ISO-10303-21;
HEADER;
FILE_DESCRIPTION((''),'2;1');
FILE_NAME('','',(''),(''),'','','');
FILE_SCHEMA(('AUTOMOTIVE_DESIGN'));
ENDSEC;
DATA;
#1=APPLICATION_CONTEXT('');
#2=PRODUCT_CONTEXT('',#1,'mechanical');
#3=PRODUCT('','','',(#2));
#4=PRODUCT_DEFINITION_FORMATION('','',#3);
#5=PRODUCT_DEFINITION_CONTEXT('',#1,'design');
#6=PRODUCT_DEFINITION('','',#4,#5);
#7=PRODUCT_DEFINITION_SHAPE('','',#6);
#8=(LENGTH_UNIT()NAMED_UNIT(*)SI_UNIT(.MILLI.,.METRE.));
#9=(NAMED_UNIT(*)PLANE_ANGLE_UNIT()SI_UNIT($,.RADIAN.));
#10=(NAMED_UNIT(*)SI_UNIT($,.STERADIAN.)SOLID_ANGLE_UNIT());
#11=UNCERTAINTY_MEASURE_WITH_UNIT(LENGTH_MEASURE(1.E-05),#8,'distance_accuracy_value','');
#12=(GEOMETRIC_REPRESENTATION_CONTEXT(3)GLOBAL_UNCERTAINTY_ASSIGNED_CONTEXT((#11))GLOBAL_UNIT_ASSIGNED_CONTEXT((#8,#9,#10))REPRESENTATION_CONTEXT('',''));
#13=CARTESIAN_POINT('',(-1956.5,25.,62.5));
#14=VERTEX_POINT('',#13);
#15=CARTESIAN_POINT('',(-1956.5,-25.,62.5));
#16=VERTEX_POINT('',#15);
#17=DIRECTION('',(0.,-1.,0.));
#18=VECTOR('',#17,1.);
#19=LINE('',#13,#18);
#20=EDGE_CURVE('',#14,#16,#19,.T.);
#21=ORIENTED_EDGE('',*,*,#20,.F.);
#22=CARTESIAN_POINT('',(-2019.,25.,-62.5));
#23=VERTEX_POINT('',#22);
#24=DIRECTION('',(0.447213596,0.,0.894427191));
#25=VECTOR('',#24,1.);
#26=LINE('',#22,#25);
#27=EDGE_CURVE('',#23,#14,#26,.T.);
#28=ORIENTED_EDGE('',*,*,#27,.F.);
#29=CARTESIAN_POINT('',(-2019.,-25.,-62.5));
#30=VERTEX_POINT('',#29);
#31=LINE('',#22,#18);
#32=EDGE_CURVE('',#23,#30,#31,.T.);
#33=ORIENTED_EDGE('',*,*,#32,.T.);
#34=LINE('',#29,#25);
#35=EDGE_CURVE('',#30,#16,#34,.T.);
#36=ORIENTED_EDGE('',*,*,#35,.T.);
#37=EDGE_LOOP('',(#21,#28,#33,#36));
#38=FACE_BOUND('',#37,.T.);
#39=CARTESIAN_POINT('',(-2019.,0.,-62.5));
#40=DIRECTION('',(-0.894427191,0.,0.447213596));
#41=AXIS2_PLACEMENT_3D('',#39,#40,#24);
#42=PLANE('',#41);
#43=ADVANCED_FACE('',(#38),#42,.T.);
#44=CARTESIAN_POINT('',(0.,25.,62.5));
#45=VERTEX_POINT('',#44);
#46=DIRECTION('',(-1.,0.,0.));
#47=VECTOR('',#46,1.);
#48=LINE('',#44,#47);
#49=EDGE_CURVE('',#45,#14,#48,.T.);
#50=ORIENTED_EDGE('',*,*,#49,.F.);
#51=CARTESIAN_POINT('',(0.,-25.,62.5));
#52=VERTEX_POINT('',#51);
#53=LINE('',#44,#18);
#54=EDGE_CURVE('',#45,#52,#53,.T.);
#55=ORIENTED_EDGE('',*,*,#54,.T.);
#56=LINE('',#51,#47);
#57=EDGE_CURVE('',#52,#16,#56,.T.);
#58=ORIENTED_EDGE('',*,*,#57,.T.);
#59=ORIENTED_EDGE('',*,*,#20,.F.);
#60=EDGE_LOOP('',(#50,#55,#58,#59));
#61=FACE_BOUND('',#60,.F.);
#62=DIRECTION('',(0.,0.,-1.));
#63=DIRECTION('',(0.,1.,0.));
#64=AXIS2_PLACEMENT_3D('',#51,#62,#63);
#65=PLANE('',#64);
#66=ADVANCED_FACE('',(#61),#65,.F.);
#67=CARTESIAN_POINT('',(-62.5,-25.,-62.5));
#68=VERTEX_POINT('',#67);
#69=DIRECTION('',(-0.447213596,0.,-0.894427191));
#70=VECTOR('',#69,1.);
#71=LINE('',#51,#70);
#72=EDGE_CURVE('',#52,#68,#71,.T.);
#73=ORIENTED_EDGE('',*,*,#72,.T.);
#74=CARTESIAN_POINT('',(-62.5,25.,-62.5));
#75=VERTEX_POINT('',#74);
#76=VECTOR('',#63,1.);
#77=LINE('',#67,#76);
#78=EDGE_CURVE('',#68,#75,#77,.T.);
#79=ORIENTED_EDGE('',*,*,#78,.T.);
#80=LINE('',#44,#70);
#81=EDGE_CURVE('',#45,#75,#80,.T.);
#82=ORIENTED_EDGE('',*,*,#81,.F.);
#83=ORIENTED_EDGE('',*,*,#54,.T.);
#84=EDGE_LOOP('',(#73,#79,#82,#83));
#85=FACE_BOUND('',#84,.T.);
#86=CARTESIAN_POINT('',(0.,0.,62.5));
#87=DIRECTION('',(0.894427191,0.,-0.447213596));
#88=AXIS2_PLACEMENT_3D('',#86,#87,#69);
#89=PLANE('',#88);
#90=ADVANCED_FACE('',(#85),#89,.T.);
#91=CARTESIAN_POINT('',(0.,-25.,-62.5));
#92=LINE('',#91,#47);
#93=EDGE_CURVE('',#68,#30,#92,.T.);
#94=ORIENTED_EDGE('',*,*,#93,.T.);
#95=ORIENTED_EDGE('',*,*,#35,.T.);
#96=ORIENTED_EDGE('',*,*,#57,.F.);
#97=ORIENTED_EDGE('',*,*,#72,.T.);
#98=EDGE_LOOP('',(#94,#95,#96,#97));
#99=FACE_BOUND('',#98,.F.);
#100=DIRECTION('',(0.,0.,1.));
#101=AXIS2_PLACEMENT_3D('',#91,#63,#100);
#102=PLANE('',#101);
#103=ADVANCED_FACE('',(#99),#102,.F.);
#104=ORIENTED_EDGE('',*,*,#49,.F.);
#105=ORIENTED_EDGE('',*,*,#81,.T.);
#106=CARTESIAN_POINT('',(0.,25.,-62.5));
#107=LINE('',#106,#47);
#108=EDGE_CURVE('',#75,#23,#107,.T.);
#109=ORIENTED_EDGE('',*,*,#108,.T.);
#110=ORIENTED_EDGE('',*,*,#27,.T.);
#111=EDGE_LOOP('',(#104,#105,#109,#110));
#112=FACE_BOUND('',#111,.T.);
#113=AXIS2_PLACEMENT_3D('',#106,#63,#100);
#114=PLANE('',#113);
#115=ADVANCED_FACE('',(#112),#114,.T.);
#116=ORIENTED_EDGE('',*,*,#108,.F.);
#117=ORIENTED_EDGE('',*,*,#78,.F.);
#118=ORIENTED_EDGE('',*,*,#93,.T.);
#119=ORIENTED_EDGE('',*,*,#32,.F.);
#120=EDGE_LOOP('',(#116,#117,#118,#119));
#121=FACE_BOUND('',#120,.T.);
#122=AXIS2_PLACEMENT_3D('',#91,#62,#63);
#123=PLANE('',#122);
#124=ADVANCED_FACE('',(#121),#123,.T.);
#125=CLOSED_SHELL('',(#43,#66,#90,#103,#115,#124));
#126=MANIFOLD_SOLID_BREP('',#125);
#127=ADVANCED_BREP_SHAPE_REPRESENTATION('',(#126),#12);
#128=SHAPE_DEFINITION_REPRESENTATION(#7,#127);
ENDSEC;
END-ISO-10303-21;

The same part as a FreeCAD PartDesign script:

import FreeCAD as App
import Part
import Sketcher
Q = App.Units.Quantity


def add_polygon(sketch, points):
    """Adds a closed chain of lines whose ends are joined by coincident constraints."""
    first, n = sketch.GeometryCount, len(points)
    for a, b in zip(points, points[1:] + points[:1]):
        sketch.addGeometry(Part.LineSegment(App.Vector(*a, 0), App.Vector(*b, 0)), False)
    for i in range(n):
        sketch.addConstraint(Sketcher.Constraint("Coincident", first + i, 2, first + (i + 1) % n, 1))

doc = App.newDocument("Part")
body = doc.addObject("PartDesign::Body", "Body")

# Sketch on YZ plane
sketch1 = doc.addObject("Sketcher::SketchObject", "Sketch")
body.addObject(sketch1)
sketch1.AttachmentSupport = (doc.YZ_Plane, [""])
sketch1.MapMode = "FlatFace"
add_polygon(sketch1, [(-25, 62.5), (-25, -62.5), (25, -62.5), (25, 62.5)])  # lines 0-3
sketch1.addConstraint([
    Sketcher.Constraint("Vertical", 0),
    Sketcher.Constraint("Horizontal", 1),
    Sketcher.Constraint("Vertical", 2),
    Sketcher.Constraint("Horizontal", 3),
    Sketcher.Constraint("Symmetric", 0, 2, 2, 2, -1, 1),
    Sketcher.Constraint("DistanceX", 1, 1, 1, 2, Q("50 mm")),
    Sketcher.Constraint("DistanceY", 0, 2, 0, 1, Q("125 mm")),
])
pad1 = doc.addObject("PartDesign::Pad", "Pad")
body.addObject(pad1)
pad1.Profile = sketch1
pad1.Length = 2019
pad1.Reversed = True

# Sketch on XZ plane
sketch2 = doc.addObject("Sketcher::SketchObject", "Sketch001")
body.addObject(sketch2)
sketch2.AttachmentSupport = (doc.XZ_Plane, [""])
sketch2.MapMode = "FlatFace"
add_polygon(sketch2, [(0, -62.5), (0, 62.5), (-62.5, -62.5)])  # lines 0-2
add_polygon(sketch2, [(-2019, 62.5), (-2019, -62.5), (-1956.5, 62.5)])  # lines 3-5
sketch2.addConstraint([
    Sketcher.Constraint("Vertical", 0),
    Sketcher.Constraint("Horizontal", 2),
    Sketcher.Constraint("Vertical", 3),
    Sketcher.Constraint("Horizontal", 5),
    Sketcher.Constraint("Symmetric", 0, 2, 2, 2, -1, 1),
    Sketcher.Constraint("Parallel", 1, 4),
    Sketcher.Constraint("Horizontal", 2, 2, 3, 2),
    Sketcher.Constraint("Horizontal", 0, 2, 4, 2),
    Sketcher.Constraint("DistanceY", 0, 1, 0, 2, Q("125 mm")),
    Sketcher.Constraint("DistanceX", 2, 1, 2, 2, Q("62.5 mm")),
    Sketcher.Constraint("DistanceX", 3, 2, -1, 1, Q("2019 mm")),
])
pocket1 = doc.addObject("PartDesign::Pocket", "Pocket")
body.addObject(pocket1)
pocket1.Profile = sketch2
pocket1.Type = "ThroughAll"
pocket1.Midplane = True

doc.recompute()
